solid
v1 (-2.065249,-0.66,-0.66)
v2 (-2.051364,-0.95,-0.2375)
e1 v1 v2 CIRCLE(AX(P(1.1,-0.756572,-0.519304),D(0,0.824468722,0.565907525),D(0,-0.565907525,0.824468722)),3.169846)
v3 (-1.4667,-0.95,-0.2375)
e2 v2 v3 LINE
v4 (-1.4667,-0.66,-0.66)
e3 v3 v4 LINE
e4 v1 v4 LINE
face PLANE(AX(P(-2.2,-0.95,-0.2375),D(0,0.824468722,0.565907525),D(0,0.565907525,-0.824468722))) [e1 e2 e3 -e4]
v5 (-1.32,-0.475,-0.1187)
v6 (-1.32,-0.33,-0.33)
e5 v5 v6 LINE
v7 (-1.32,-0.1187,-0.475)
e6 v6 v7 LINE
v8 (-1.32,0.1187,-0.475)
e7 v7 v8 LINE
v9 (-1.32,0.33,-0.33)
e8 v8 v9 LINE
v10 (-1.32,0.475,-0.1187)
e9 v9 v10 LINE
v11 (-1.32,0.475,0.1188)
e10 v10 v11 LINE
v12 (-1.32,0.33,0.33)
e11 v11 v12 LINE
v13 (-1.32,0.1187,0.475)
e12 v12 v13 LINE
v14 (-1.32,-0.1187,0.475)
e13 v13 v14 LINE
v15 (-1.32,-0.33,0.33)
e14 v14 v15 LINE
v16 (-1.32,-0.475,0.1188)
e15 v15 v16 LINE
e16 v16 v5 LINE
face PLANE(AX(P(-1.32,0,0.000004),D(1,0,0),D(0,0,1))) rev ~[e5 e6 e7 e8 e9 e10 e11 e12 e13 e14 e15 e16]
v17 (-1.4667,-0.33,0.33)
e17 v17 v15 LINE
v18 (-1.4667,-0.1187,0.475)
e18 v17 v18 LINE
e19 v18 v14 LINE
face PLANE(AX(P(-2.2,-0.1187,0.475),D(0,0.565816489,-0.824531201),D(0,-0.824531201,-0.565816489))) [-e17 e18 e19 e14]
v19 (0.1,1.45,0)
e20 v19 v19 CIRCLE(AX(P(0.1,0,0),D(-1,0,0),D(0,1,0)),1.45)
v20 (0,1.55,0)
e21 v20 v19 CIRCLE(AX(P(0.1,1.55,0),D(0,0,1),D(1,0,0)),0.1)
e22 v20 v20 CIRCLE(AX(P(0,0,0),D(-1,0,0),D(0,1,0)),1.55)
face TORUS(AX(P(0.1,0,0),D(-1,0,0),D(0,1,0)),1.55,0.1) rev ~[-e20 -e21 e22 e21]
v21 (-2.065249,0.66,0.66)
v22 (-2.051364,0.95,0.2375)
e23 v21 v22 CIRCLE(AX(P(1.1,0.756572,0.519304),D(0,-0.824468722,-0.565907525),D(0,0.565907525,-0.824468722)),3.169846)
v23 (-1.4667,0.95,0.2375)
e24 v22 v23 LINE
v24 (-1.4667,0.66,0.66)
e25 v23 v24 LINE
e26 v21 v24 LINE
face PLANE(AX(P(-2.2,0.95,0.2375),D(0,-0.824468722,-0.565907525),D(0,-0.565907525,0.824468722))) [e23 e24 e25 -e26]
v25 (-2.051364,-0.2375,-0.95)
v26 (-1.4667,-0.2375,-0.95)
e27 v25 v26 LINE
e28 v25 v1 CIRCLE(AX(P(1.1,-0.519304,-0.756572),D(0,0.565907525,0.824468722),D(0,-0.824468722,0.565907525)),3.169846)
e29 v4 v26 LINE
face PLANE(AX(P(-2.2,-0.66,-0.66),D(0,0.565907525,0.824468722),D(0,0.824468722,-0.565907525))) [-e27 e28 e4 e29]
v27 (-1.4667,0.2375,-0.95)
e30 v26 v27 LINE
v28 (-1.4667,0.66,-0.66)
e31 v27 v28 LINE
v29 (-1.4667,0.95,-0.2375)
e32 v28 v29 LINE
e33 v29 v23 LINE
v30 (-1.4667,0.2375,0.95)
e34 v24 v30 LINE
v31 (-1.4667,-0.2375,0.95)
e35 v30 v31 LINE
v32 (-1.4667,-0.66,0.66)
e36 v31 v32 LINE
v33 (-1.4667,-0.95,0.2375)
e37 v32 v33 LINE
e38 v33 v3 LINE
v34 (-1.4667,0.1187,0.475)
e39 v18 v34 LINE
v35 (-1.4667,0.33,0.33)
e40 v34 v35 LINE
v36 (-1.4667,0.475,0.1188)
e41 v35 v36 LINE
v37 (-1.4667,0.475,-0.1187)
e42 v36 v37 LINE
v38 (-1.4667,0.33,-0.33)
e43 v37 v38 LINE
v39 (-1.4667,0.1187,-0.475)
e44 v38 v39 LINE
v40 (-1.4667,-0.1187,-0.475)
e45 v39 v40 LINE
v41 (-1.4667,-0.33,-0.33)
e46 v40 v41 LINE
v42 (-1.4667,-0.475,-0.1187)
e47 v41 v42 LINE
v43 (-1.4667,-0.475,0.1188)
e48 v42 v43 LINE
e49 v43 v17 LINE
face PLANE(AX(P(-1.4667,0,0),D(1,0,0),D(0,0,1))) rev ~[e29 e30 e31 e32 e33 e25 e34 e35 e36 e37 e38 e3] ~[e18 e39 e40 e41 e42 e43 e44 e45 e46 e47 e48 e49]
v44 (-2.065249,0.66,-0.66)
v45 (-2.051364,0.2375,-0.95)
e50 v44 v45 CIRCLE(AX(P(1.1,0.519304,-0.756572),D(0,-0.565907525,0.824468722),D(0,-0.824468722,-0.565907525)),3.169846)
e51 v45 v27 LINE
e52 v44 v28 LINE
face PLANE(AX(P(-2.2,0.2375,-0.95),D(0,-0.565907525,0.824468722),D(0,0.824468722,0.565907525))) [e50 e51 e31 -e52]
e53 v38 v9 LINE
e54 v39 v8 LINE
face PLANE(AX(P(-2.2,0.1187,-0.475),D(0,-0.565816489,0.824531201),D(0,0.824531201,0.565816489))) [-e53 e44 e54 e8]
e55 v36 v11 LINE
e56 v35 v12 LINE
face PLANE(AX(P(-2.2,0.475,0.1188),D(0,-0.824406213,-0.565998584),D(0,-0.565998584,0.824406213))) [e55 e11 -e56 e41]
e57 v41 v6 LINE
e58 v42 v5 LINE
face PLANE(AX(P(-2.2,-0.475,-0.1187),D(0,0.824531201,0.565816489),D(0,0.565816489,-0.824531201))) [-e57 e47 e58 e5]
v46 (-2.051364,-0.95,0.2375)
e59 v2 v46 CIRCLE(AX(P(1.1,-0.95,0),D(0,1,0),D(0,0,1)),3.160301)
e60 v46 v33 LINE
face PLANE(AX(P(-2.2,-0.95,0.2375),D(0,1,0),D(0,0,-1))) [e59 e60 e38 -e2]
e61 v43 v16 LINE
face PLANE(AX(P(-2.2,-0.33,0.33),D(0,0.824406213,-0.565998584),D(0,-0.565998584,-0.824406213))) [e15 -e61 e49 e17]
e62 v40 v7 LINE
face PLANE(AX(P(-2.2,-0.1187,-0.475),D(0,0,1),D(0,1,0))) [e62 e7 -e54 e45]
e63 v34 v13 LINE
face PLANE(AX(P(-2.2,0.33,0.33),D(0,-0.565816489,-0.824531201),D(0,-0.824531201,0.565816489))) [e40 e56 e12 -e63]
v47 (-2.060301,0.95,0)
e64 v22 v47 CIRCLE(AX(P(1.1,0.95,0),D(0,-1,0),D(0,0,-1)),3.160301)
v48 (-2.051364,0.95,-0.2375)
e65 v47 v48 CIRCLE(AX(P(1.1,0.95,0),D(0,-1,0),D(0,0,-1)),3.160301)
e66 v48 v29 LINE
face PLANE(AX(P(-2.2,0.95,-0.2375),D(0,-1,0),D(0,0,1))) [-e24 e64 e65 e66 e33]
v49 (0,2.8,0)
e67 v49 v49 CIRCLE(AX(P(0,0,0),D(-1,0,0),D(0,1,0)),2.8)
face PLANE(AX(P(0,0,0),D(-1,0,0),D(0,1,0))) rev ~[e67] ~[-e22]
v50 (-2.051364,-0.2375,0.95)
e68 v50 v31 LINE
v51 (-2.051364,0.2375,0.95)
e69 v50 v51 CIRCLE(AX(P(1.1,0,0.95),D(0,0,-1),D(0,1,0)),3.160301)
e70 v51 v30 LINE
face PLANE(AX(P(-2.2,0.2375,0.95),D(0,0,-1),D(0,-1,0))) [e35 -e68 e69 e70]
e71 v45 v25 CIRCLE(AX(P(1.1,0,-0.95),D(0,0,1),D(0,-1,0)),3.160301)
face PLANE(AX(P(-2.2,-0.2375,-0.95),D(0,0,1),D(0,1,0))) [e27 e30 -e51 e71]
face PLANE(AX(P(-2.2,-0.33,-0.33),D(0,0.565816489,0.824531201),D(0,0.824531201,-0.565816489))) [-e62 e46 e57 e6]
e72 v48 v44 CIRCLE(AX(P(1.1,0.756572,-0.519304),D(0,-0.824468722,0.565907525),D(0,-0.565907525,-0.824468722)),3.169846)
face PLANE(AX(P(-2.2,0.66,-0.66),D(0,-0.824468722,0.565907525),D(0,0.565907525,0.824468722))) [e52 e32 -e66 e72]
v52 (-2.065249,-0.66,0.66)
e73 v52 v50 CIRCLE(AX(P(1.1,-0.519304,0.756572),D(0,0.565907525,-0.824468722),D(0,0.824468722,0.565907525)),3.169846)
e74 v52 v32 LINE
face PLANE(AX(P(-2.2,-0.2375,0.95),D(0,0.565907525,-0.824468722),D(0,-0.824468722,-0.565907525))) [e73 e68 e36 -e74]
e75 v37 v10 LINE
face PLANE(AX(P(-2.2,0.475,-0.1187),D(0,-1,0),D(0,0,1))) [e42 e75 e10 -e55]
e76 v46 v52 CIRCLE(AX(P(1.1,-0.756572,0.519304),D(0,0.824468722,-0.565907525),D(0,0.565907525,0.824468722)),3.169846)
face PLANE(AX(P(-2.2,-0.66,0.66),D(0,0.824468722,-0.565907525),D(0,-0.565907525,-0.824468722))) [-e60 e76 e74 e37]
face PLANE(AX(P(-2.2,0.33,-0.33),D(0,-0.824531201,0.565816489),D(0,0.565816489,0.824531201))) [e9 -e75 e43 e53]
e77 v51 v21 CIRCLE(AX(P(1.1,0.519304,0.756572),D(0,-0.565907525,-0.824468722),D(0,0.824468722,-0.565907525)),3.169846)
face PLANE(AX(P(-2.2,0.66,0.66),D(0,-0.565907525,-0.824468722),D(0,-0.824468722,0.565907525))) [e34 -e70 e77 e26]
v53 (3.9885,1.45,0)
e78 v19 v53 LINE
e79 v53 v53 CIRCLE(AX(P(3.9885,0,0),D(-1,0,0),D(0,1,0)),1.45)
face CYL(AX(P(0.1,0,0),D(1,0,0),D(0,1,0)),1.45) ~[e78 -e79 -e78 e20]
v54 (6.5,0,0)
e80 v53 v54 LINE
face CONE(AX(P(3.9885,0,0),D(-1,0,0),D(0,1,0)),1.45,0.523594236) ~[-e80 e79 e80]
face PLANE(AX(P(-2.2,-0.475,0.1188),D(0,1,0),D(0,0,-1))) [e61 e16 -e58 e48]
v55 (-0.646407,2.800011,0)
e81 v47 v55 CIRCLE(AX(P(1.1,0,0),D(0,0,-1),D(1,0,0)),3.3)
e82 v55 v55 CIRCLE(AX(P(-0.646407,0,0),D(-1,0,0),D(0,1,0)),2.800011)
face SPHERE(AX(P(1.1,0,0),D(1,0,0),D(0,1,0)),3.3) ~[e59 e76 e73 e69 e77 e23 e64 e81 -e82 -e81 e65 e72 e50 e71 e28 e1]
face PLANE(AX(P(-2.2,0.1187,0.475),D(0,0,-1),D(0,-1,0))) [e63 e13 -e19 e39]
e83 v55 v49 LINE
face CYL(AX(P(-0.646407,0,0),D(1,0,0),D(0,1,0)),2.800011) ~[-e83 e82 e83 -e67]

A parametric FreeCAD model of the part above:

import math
import FreeCAD as App
import Part
import Sketcher
from FreeCAD import Vector
Q = App.Units.Quantity


def add_polygon(sketch, points):
    """Adds a closed chain of lines whose ends are joined by coincident constraints."""
    first, n = sketch.GeometryCount, len(points)
    for a, b in zip(points, points[1:] + points[:1]):
        sketch.addGeometry(Part.LineSegment(App.Vector(*a, 0), App.Vector(*b, 0)), False)
    for i in range(n):
        sketch.addConstraint(Sketcher.Constraint("Coincident", first + i, 2, first + (i + 1) % n, 1))

doc = App.newDocument("Part")
body = doc.addObject("PartDesign::Body", "Body")

# Sketch on XY plane
sketch1 = doc.addObject("Sketcher::SketchObject", "Sketch")
body.addObject(sketch1)
sketch1.AttachmentSupport = (doc.XY_Plane, [""])
sketch1.MapMode = "FlatFace"
sketch1.addGeometry([
    Part.ArcOfCircle(Part.Circle(Vector(1.1, 0, 0), Vector(0, 0, 1), 3.3), math.radians(122), math.radians(180)),  # 0
    Part.LineSegment(Vector(-2.2, 0, 0), Vector(6.5, 0, 0)),  # 1
    Part.LineSegment(Vector(6.5, 0, 0), Vector(3.99, 1.45, 0)),  # 2
    Part.LineSegment(Vector(3.99, 1.45, 0), Vector(0.1, 1.45, 0)),  # 3
    Part.ArcOfCircle(Part.Circle(Vector(0.1, 1.55, 0), Vector(0, 0, 1), 0.1), math.radians(180), math.radians(270)),  # 4
    Part.LineSegment(Vector(0, 1.55, 0), Vector(0, 2.8, 0)),  # 5
    Part.LineSegment(Vector(0, 2.8, 0), Vector(-0.65, 2.8, 0)),  # 6
], False)
sketch1.addConstraint([
    Sketcher.Constraint("Coincident", 0, 2, 1, 1),
    Sketcher.Constraint("Coincident", 1, 2, 2, 1),
    Sketcher.Constraint("Coincident", 2, 2, 3, 1),
    Sketcher.Constraint("Tangent", 3, 2, 4, 2),
    Sketcher.Constraint("Tangent", 4, 1, 5, 1),
    Sketcher.Constraint("Coincident", 5, 2, 6, 1),
    Sketcher.Constraint("Coincident", 6, 2, 0, 1),
    Sketcher.Constraint("Horizontal", 1),
    Sketcher.Constraint("Horizontal", 3),
    Sketcher.Constraint("Vertical", 5),
    Sketcher.Constraint("Horizontal", 6),
    Sketcher.Constraint("PointOnObject", 0, 3, -1),
    Sketcher.Constraint("PointOnObject", 0, 2, -1),
    Sketcher.Constraint("PointOnObject", 4, 1, -2),
    Sketcher.Constraint("Radius", 0, 3.3),
    Sketcher.Constraint("Radius", 4, 0.1),
    Sketcher.Constraint("Angle", 2, Q("150.0003 deg")),
    Sketcher.Constraint("DistanceX", 1, 1, 1, 2, 8.7),
    Sketcher.Constraint("DistanceX", 4, 3, 0, 3, 1.0),
    Sketcher.Constraint("Distance", 2, 2.9),
    Sketcher.Constraint("DistanceY", 5, 1, 5, 2, 1.25),
])
revolution = doc.addObject("PartDesign::Revolution", "Revolution")
body.addObject(revolution)
revolution.Profile = sketch1
revolution.ReferenceAxis = (sketch1, ["H_Axis"])
revolution.Angle = 360

# Sketch on YZ plane
sketch2 = doc.addObject("Sketcher::SketchObject", "Sketch001")
body.addObject(sketch2)
sketch2.AttachmentSupport = (doc.YZ_Plane, [""])
sketch2.MapMode = "FlatFace"
sketch2.AttachmentOffset = App.Placement(Vector(0, 0, -2.2), App.Rotation())
add_polygon(sketch2, [(0.66, 0.66), (0.24, 0.95), (-0.24, 0.95), (-0.66, 0.66), (-0.95, 0.24), (-0.95, -0.24), (-0.66, -0.66), (-0.24, -0.95), (0.24, -0.95), (0.66, -0.66), (0.95, -0.24), (0.95, 0.24)])  # lines 0-11
sketch2.addConstraint([
    Sketcher.Constraint("Horizontal", 1),
    Sketcher.Constraint("Vertical", 4),
    Sketcher.Constraint("Horizontal", 7),
    Sketcher.Constraint("Vertical", 10),
    Sketcher.Constraint("Symmetric", 0, 2, 6, 2, -1, 1),
    Sketcher.Constraint("Symmetric", 2, 2, 8, 2, -1, 1),
    Sketcher.Constraint("Symmetric", 3, 2, 9, 2, -1, 1),
    Sketcher.Constraint("Symmetric", 5, 2, 11, 2, -1, 1),
    Sketcher.Constraint("Symmetric", 5, 2, 8, 2, -2),
    Sketcher.Constraint("Perpendicular", 0, 3),
    Sketcher.Constraint("Perpendicular", 2, 5),
    Sketcher.Constraint("Perpendicular", 5, 8),
    Sketcher.Constraint("Perpendicular", 8, 11),
    Sketcher.Constraint("Horizontal", 4, 2, 9, 2),
    Sketcher.Constraint("Equal", 7, 4),
    Sketcher.Constraint("Equal", 2, 3),
    Sketcher.Constraint("DistanceY", 6, 2, 1, 2, 1.9),
    Sketcher.Constraint("DistanceX", 1, 2, 1, 1, 0.475),
    Sketcher.Constraint("DistanceX", 2, 2, -1, 1, 0.66),
])
pocket1 = doc.addObject("PartDesign::Pocket", "Pocket")
body.addObject(pocket1)
pocket1.Profile = sketch2
pocket1.Length = 0.7333
pocket1.Reversed = True

# Sketch on YZ plane
sketch3 = doc.addObject("Sketcher::SketchObject", "Sketch002")
body.addObject(sketch3)
sketch3.AttachmentSupport = (doc.YZ_Plane, [""])
sketch3.MapMode = "FlatFace"
sketch3.AttachmentOffset = App.Placement(Vector(0, 0, -2.2), App.Rotation())
add_polygon(sketch3, [(0.33, 0.33), (0.12, 0.47), (-0.12, 0.47), (-0.33, 0.33), (-0.47, 0.12), (-0.47, -0.12), (-0.33, -0.33), (-0.12, -0.47), (0.12, -0.47), (0.33, -0.33), (0.47, -0.12), (0.47, 0.12)])  # lines 0-11
sketch3.addConstraint([
    Sketcher.Constraint("Horizontal", 1),
    Sketcher.Constraint("Vertical", 4),
    Sketcher.Constraint("Horizontal", 7),
    Sketcher.Constraint("Vertical", 10),
    Sketcher.Constraint("Symmetric", 0, 2, 6, 2, -1, 1),
    Sketcher.Constraint("Symmetric", 2, 2, 8, 2, -1, 1),
    Sketcher.Constraint("Symmetric", 3, 2, 9, 2, -1, 1),
    Sketcher.Constraint("Symmetric", 5, 2, 11, 2, -1, 1),
    Sketcher.Constraint("Symmetric", 5, 2, 8, 2, -2),
    Sketcher.Constraint("Perpendicular", 0, 3),
    Sketcher.Constraint("Perpendicular", 2, 5),
    Sketcher.Constraint("Perpendicular", 5, 8),
    Sketcher.Constraint("Perpendicular", 8, 11),
    Sketcher.Constraint("Horizontal", 4, 2, 9, 2),
    Sketcher.Constraint("Equal", 7, 4),
    Sketcher.Constraint("Equal", 2, 3),
    Sketcher.Constraint("Angle", 0, Q("145.541 deg")),
    Sketcher.Constraint("DistanceX", 2, 2, -1, 1, 0.33),
    Sketcher.Constraint("DistanceY", 6, 2, 1, 2, 0.95),
])
pocket2 = doc.addObject("PartDesign::Pocket", "Pocket001")
body.addObject(pocket2)
pocket2.Profile = sketch3
pocket2.Length = 0.88
pocket2.Reversed = True

doc.recompute()
